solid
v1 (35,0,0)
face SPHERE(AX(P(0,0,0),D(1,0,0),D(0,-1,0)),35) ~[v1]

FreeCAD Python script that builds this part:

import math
import FreeCAD as App
import Part
import Sketcher
from FreeCAD import Vector
Q = App.Units.Quantity

doc = App.newDocument("Part")
body = doc.addObject("PartDesign::Body", "Body")

# Sketch on XY plane
sketch1 = doc.addObject("Sketcher::SketchObject", "Sketch")
body.addObject(sketch1)
sketch1.AttachmentSupport = (doc.XY_Plane, [""])
sketch1.MapMode = "FlatFace"
sketch1.addGeometry([
    Part.LineSegment(Vector(35, 0, 0), Vector(-35, 0, 0)),
    Part.ArcOfCircle(Part.Circle(Vector(0, 0, 0), Vector(0, 0, 1), 35), math.radians(180), math.radians(360)),
], False)
sketch1.addConstraint([
    Sketcher.Constraint("Coincident", 0, 1, 1, 2),
    Sketcher.Constraint("Coincident", 1, 1, 0, 2),
    Sketcher.Constraint("Horizontal", 0),
    Sketcher.Constraint("Coincident", 1, 3, -1, 1),
    Sketcher.Constraint("PointOnObject", 0, 1, -1),
    Sketcher.Constraint("Radius", 1, Q("35 mm")),
])
revolution = doc.addObject("PartDesign::Revolution", "Revolution")
body.addObject(revolution)
revolution.Profile = sketch1
revolution.ReferenceAxis = (sketch1, ["H_Axis"])
revolution.Angle = 360

doc.recompute()
